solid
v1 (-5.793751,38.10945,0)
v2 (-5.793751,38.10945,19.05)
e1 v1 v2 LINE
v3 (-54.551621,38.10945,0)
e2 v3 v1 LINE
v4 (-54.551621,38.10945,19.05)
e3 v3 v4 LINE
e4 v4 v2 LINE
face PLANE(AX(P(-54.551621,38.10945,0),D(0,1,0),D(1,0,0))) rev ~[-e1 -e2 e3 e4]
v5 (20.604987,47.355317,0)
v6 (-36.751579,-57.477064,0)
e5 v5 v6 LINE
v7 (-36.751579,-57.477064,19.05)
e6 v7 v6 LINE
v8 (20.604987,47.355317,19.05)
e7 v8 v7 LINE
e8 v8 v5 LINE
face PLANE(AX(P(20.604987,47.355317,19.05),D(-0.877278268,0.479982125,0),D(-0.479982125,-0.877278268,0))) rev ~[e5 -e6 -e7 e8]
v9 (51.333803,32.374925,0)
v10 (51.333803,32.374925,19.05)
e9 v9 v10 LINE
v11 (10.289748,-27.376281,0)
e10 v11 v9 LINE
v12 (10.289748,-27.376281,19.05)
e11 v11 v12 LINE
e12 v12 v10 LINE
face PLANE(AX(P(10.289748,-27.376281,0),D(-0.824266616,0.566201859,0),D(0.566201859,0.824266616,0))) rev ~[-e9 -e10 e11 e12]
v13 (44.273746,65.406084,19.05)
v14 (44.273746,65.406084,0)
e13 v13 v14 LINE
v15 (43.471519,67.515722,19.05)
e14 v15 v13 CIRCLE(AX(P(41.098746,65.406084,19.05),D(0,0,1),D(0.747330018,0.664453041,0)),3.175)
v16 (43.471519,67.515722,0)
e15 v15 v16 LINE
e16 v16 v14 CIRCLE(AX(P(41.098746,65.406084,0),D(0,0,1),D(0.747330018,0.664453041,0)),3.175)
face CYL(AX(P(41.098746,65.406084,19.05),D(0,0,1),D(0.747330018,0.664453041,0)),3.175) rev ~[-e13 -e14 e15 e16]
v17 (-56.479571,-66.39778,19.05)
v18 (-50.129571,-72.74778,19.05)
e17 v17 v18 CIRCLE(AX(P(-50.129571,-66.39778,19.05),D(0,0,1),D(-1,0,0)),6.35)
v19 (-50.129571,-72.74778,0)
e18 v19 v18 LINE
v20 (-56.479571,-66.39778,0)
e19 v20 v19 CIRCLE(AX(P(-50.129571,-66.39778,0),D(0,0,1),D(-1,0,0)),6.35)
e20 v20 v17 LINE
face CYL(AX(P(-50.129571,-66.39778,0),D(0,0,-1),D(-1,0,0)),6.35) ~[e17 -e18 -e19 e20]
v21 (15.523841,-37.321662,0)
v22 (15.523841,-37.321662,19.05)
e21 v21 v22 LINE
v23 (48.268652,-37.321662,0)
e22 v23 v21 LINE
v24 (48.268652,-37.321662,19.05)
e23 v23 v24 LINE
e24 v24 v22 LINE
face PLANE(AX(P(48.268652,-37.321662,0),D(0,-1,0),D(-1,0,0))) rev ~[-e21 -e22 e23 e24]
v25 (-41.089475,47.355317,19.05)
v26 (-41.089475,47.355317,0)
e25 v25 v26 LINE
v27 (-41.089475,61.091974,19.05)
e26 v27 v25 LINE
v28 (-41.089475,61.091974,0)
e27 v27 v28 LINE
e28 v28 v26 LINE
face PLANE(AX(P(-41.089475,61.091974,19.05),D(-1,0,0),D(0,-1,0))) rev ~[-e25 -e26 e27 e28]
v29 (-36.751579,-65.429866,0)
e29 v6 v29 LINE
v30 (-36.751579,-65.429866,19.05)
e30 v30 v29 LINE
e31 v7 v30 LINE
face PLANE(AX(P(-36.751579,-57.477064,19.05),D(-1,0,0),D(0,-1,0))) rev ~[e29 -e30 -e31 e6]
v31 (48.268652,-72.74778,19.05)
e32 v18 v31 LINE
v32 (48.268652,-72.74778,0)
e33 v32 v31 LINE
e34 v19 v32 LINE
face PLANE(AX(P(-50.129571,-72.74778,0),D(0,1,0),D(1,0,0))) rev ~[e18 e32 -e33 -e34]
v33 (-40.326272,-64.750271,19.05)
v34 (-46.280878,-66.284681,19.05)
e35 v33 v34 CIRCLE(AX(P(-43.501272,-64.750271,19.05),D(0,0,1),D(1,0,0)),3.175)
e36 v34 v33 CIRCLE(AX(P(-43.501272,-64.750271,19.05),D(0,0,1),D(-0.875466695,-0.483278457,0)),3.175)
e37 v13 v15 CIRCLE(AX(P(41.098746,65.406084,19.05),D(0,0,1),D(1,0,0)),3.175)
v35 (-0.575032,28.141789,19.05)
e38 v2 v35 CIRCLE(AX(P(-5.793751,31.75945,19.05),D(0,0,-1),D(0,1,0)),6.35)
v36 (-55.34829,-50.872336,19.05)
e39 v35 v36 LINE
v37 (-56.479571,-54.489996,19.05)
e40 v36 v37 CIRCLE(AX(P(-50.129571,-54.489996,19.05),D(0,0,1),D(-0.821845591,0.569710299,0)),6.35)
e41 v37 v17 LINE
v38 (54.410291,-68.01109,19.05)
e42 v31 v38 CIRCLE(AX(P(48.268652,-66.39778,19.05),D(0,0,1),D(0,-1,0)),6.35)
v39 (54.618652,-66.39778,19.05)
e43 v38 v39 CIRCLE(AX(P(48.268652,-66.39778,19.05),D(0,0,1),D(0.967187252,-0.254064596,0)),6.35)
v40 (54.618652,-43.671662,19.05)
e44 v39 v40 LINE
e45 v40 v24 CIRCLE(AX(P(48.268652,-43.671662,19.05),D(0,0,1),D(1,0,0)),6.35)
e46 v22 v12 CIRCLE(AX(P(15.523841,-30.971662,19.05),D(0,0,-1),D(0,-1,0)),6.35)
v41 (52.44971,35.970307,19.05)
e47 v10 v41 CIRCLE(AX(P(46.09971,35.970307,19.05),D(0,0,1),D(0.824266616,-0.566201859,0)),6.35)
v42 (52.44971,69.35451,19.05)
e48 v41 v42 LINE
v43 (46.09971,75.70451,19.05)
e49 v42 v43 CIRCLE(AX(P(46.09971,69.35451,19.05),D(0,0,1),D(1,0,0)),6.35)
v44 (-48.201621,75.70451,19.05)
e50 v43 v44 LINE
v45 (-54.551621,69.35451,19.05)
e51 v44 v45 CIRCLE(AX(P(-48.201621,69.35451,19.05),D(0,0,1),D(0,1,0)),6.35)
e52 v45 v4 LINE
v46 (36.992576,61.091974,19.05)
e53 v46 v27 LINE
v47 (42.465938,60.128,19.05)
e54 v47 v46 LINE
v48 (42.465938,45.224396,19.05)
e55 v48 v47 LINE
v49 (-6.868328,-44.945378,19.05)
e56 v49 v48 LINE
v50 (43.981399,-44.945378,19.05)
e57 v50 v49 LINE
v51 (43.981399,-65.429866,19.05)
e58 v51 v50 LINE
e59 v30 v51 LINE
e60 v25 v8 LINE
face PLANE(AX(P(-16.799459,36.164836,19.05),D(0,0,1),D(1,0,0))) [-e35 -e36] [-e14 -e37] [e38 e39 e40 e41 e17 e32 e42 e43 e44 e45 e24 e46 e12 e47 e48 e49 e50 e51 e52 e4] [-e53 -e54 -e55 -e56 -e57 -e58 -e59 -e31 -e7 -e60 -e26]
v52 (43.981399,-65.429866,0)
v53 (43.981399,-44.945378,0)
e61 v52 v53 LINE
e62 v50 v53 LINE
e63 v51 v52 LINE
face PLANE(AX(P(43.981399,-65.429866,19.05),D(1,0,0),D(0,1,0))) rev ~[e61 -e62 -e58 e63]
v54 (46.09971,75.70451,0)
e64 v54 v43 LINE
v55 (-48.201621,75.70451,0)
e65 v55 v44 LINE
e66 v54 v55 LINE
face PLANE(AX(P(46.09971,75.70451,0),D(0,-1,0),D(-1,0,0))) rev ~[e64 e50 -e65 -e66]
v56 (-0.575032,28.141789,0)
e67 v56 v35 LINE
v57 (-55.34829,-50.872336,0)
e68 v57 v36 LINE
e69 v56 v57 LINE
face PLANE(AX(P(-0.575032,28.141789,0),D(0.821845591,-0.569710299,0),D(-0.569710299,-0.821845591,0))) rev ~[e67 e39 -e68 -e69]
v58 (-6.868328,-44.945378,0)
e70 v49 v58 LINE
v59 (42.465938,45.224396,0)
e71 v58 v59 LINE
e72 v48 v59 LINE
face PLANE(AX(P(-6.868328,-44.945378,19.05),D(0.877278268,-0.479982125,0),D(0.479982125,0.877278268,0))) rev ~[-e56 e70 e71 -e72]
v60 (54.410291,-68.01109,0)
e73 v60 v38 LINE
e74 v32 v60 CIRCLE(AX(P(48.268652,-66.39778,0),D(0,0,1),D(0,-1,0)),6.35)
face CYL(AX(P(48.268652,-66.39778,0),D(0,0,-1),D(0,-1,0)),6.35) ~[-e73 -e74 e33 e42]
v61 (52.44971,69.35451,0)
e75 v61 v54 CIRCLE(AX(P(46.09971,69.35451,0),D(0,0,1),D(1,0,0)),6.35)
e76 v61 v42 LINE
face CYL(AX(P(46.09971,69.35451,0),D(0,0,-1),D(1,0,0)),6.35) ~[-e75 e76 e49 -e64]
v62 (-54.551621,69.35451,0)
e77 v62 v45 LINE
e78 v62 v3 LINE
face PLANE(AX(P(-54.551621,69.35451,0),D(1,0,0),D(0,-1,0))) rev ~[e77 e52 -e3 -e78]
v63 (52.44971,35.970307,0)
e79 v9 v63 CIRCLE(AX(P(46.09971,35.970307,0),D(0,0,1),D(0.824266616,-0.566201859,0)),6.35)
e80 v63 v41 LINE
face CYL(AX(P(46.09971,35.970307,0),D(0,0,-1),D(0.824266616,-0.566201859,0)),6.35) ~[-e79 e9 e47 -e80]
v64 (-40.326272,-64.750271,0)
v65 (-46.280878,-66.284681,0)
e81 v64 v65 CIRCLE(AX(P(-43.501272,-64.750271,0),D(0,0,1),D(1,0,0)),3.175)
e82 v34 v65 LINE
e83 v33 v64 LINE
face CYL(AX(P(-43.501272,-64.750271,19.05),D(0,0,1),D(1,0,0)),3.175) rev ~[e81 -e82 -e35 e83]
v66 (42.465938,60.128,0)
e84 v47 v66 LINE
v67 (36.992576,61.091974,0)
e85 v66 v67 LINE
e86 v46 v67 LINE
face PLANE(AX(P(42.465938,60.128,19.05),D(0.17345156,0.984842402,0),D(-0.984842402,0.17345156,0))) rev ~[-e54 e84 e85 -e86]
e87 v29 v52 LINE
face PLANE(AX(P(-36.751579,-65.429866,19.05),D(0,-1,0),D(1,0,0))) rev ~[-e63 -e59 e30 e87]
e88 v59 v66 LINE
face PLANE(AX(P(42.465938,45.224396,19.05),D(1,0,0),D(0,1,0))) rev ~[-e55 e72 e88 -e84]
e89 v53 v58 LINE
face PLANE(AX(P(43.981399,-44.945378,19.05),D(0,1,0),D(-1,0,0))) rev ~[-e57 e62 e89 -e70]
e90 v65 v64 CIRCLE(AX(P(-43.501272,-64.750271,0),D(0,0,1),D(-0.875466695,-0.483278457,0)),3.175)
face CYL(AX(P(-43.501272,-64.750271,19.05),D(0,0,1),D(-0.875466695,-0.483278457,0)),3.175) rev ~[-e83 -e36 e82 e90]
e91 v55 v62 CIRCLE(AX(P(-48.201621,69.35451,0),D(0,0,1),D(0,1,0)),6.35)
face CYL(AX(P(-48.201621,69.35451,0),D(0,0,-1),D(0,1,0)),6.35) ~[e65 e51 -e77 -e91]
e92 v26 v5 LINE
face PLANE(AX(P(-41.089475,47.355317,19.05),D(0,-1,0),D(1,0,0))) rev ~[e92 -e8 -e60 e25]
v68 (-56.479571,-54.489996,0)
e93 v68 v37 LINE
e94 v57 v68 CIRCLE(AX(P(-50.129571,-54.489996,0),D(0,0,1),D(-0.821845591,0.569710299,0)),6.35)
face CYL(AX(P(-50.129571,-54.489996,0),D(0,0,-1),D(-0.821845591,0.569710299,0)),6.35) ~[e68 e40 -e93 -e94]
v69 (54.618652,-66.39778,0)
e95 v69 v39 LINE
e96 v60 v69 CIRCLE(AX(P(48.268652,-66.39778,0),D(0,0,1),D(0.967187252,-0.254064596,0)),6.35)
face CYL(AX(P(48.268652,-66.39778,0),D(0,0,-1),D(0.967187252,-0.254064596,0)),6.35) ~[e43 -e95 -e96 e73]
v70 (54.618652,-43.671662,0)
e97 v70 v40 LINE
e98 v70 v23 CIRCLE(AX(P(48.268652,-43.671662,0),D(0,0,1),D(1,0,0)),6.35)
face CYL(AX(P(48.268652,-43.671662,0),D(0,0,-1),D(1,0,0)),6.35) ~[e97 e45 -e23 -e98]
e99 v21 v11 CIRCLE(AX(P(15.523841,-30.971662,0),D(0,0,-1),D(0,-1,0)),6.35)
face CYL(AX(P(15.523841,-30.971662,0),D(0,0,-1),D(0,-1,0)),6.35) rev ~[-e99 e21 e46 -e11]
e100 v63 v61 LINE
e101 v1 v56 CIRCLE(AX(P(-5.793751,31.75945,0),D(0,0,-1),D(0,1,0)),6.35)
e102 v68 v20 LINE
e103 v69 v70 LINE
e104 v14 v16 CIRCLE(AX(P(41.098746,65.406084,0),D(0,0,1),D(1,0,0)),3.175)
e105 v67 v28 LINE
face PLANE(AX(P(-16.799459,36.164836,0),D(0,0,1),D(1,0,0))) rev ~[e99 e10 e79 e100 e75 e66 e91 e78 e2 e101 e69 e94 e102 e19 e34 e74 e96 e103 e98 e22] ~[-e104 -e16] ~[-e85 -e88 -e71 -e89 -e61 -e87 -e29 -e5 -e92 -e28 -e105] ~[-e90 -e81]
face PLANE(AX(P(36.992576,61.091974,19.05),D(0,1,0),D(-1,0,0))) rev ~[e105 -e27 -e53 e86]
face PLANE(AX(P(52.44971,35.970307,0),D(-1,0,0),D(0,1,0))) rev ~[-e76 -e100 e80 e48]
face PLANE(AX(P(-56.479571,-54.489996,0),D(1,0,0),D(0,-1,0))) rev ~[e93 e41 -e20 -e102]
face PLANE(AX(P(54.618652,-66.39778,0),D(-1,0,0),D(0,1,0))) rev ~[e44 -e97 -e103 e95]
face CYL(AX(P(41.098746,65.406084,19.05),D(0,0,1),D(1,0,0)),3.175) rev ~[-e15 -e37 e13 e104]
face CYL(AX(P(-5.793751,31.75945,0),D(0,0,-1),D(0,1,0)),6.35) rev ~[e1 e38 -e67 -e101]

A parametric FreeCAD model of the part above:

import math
import FreeCAD as App
import Part
import Sketcher
Q = App.Units.Quantity

doc = App.newDocument("Part")
body = doc.addObject("PartDesign::Body", "Body")

sketch1 = body.newObject("Sketcher::SketchObject", "Sketch")
sketch1.AttachmentSupport = (doc.getObject("XY_Plane"), [""])
sketch1.MapMode = "FlatFace"
sketch1.addGeometry([
    Part.LineSegment(App.Vector(-54.6, 38.1, 0), App.Vector(-5.8, 38.1, 0)),
    Part.ArcOfCircle(Part.Circle(App.Vector(-5.8, 31.8, 0), App.Vector(0, 0, 1), 6.3), math.radians(-35), math.radians(90)),
    Part.LineSegment(App.Vector(-0.6, 28.1, 0), App.Vector(-55.3, -50.9, 0)),
    Part.ArcOfCircle(Part.Circle(App.Vector(-50.1, -54.5, 0), App.Vector(0, 0, 1), 6.3), math.radians(145), math.radians(180)),
    Part.LineSegment(App.Vector(-56.5, -54.5, 0), App.Vector(-56.5, -66.4, 0)),
    Part.ArcOfCircle(Part.Circle(App.Vector(-50.1, -66.4, 0), App.Vector(0, 0, 1), 6.3), math.radians(180), math.radians(270)),
    Part.LineSegment(App.Vector(-50.1, -72.7, 0), App.Vector(48.3, -72.7, 0)),
    Part.ArcOfCircle(Part.Circle(App.Vector(48.3, -66.4, 0), App.Vector(0, 0, 1), 6.3), math.radians(-90), math.radians(-15)),
    Part.ArcOfCircle(Part.Circle(App.Vector(48.3, -66.4, 0), App.Vector(0, 0, 1), 6.3), math.radians(-14.72), math.radians(0)),
    Part.LineSegment(App.Vector(54.6, -66.4, 0), App.Vector(54.6, -43.7, 0)),
    Part.ArcOfCircle(Part.Circle(App.Vector(48.3, -43.7, 0), App.Vector(0, 0, 1), 6.3), math.radians(0), math.radians(90)),
    Part.LineSegment(App.Vector(48.3, -37.3, 0), App.Vector(15.5, -37.3, 0)),
    Part.ArcOfCircle(Part.Circle(App.Vector(15.5, -31, 0), App.Vector(0, 0, 1), 6.3), math.radians(146), math.radians(270)),
    Part.LineSegment(App.Vector(10.3, -27.4, 0), App.Vector(51.3, 32.4, 0)),
    Part.ArcOfCircle(Part.Circle(App.Vector(46.1, 36, 0), App.Vector(0, 0, 1), 6.3), math.radians(-34), math.radians(0)),
    Part.LineSegment(App.Vector(52.4, 36, 0), App.Vector(52.4, 69.4, 0)),
    Part.ArcOfCircle(Part.Circle(App.Vector(46.1, 69.4, 0), App.Vector(0, 0, 1), 6.3), math.radians(0), math.radians(90)),
    Part.LineSegment(App.Vector(46.1, 75.7, 0), App.Vector(-48.2, 75.7, 0)),
    Part.ArcOfCircle(Part.Circle(App.Vector(-48.2, 69.4, 0), App.Vector(0, 0, 1), 6.3), math.radians(90), math.radians(180)),
    Part.LineSegment(App.Vector(-54.6, 69.4, 0), App.Vector(-54.6, 38.1, 0)),
], False)
sketch1.addConstraint([
    Sketcher.Constraint("Tangent", 0, 2, 1, 2),
    Sketcher.Constraint("Tangent", 1, 1, 2, 1),
    Sketcher.Constraint("Tangent", 2, 2, 3, 1),
    Sketcher.Constraint("Tangent", 3, 2, 4, 1),
    Sketcher.Constraint("Tangent", 4, 2, 5, 1),
    Sketcher.Constraint("Tangent", 5, 2, 6, 1),
    Sketcher.Constraint("Tangent", 6, 2, 7, 1),
    Sketcher.Constraint("Tangent", 7, 2, 8, 1),
    Sketcher.Constraint("Tangent", 8, 2, 9, 1),
    Sketcher.Constraint("Tangent", 9, 2, 10, 1),
    Sketcher.Constraint("Tangent", 10, 2, 11, 1),
    Sketcher.Constraint("Tangent", 11, 2, 12, 2),
    Sketcher.Constraint("Tangent", 12, 1, 13, 1),
    Sketcher.Constraint("Tangent", 13, 2, 14, 1),
    Sketcher.Constraint("Tangent", 14, 2, 15, 1),
    Sketcher.Constraint("Tangent", 15, 2, 16, 1),
    Sketcher.Constraint("Tangent", 16, 2, 17, 1),
    Sketcher.Constraint("Tangent", 17, 2, 18, 1),
    Sketcher.Constraint("Tangent", 18, 2, 19, 1),
    Sketcher.Constraint("Coincident", 19, 2, 0, 1),
    Sketcher.Constraint("Horizontal", 0),
    Sketcher.Constraint("Vertical", 4),
    Sketcher.Constraint("Horizontal", 6),
    Sketcher.Constraint("Vertical", 9),
    Sketcher.Constraint("Horizontal", 11),
    Sketcher.Constraint("Vertical", 15),
    Sketcher.Constraint("Horizontal", 17),
    Sketcher.Constraint("Vertical", 19),
    Sketcher.Constraint("Equal", 1, 3),
    Sketcher.Constraint("Equal", 3, 5),
    Sketcher.Constraint("Equal", 5, 7),
    Sketcher.Constraint("Equal", 7, 8),
    Sketcher.Constraint("Equal", 8, 10),
    Sketcher.Constraint("Equal", 10, 12),
    Sketcher.Constraint("Equal", 12, 14),
    Sketcher.Constraint("Equal", 14, 16),
    Sketcher.Constraint("Equal", 16, 18),
    Sketcher.Constraint("Radius", 1, Q("0.25 in")),
    Sketcher.Constraint("Distance", 2, Q("96.1423 mm")),
    Sketcher.Constraint("DistanceX", 0, 1, 0, 2, Q("48.75787 mm")),
    Sketcher.Constraint("DistanceX", 11, 2, 11, 1, Q("32.744811 mm")),
    Sketcher.Constraint("DistanceX", 17, 2, 17, 1, Q("94.301331 mm")),
    Sketcher.Constraint("DistanceY", 19, 2, 19, 1, Q("31.24506 mm")),
    Sketcher.Constraint("DistanceX", 6, 1, 6, 2, Q("98.398222 mm")),
    Sketcher.Constraint("DistanceY", 4, 2, 4, 1, Q("11.907784 mm")),
    Sketcher.Constraint("DistanceY", 9, 1, 9, 2, Q("22.726117 mm")),
    Sketcher.Constraint("DistanceY", 15, 1, 15, 2, Q("33.384202 mm")),
    Sketcher.Constraint("DistanceX", 1, 3, -1, 1, Q("5.793751 mm")),
    Sketcher.Constraint("DistanceY", -1, 1, 1, 3, Q("31.75945 mm")),
    Sketcher.Constraint("DistanceX", 3, 3, -1, 1, Q("50.129571 mm")),
    Sketcher.Constraint("DistanceX", -1, 1, 7, 2, Q("54.410291 mm")),
])
pad1 = body.newObject("PartDesign::Pad", "Pad")
pad1.Profile = sketch1
pad1.Length = Q("0.75 in")

sketch2 = body.newObject("Sketcher::SketchObject", "Sketch001")
sketch2.AttachmentSupport = (doc.getObject("XY_Plane"), [""])
sketch2.MapMode = "FlatFace"
sketch2.AttachmentOffset = App.Placement(App.Vector(0, 0, 0.75 * 25.4), App.Rotation())
sketch2.addGeometry([
    Part.ArcOfCircle(Part.Circle(App.Vector(41.1, 65.4, 0), App.Vector(0, 0, 1), 3.2), math.radians(0), math.radians(42)),
    Part.ArcOfCircle(Part.Circle(App.Vector(41.1, 65.4, 0), App.Vector(0, 0, 1), 3.2), math.radians(42), math.radians(360)),
    Part.ArcOfCircle(Part.Circle(App.Vector(-43.5, -64.8, 0), App.Vector(0, 0, 1), 3.2), math.radians(0), math.radians(209)),
    Part.ArcOfCircle(Part.Circle(App.Vector(-43.5, -64.8, 0), App.Vector(0, 0, 1), 3.2), math.radians(-151), math.radians(0)),
], False)
sketch2.addConstraint([
    Sketcher.Constraint("Tangent", 0, 1, 1, 2),
    Sketcher.Constraint("Coincident", 1, 1, 0, 2),
    Sketcher.Constraint("Tangent", 2, 1, 3, 2),
    Sketcher.Constraint("Coincident", 3, 1, 2, 2),
    Sketcher.Constraint("Equal", 1, 2),
    Sketcher.Constraint("Horizontal", 1, 3, 0, 1),
    Sketcher.Constraint("Horizontal", 3, 3, 2, 1),
    Sketcher.Constraint("Radius", 0, Q("0.125 in")),
    Sketcher.Constraint("DistanceX", 2, 3, -1, 1, Q("43.501272 mm")),
    Sketcher.Constraint("DistanceY", 2, 3, -1, 1, Q("64.750271 mm")),
    Sketcher.Constraint("DistanceX", -1, 1, 1, 1, Q("43.471519 mm")),
    Sketcher.Constraint("DistanceX", 3, 1, -1, 1, Q("46.280878 mm")),
    Sketcher.Constraint("DistanceX", 2, 3, 0, 3, Q("84.600018 mm")),
    Sketcher.Constraint("DistanceY", -1, 1, 0, 3, Q("65.406084 mm")),
])
pocket1 = body.newObject("PartDesign::Pocket", "Pocket")
pocket1.Profile = sketch2
pocket1.Length = Q("1 in")

sketch3 = body.newObject("Sketcher::SketchObject", "Sketch002")
sketch3.AttachmentSupport = (doc.getObject("XY_Plane"), [""])
sketch3.MapMode = "FlatFace"
sketch3.AttachmentOffset = App.Placement(App.Vector(0, 0, 0.75 * 25.4), App.Rotation())
sketch3.addGeometry([
    Part.LineSegment(App.Vector(42, 60, 0), App.Vector(37, 61, 0)),
    Part.LineSegment(App.Vector(37, 61, 0), App.Vector(-41, 61, 0)),
    Part.LineSegment(App.Vector(-41, 61, 0), App.Vector(-41, 47, 0)),
    Part.LineSegment(App.Vector(-41, 47, 0), App.Vector(21, 47, 0)),
    Part.LineSegment(App.Vector(21, 47, 0), App.Vector(-37, -57, 0)),
    Part.LineSegment(App.Vector(-37, -57, 0), App.Vector(-37, -65, 0)),
    Part.LineSegment(App.Vector(-37, -65, 0), App.Vector(44, -65, 0)),
    Part.LineSegment(App.Vector(44, -65, 0), App.Vector(44, -45, 0)),
    Part.LineSegment(App.Vector(44, -45, 0), App.Vector(-7, -45, 0)),
    Part.LineSegment(App.Vector(-7, -45, 0), App.Vector(42, 45, 0)),
    Part.LineSegment(App.Vector(42, 45, 0), App.Vector(42, 60, 0)),
], False)
sketch3.addConstraint([
    Sketcher.Constraint("Coincident", 0, 2, 1, 1),
    Sketcher.Constraint("Coincident", 1, 2, 2, 1),
    Sketcher.Constraint("Coincident", 2, 2, 3, 1),
    Sketcher.Constraint("Coincident", 3, 2, 4, 1),
    Sketcher.Constraint("Coincident", 4, 2, 5, 1),
    Sketcher.Constraint("Coincident", 5, 2, 6, 1),
    Sketcher.Constraint("Coincident", 6, 2, 7, 1),
    Sketcher.Constraint("Coincident", 7, 2, 8, 1),
    Sketcher.Constraint("Coincident", 8, 2, 9, 1),
    Sketcher.Constraint("Coincident", 9, 2, 10, 1),
    Sketcher.Constraint("Coincident", 10, 2, 0, 1),
    Sketcher.Constraint("Horizontal", 1),
    Sketcher.Constraint("Vertical", 2),
    Sketcher.Constraint("Horizontal", 3),
    Sketcher.Constraint("Vertical", 5),
    Sketcher.Constraint("Horizontal", 6),
    Sketcher.Constraint("Vertical", 7),
    Sketcher.Constraint("Horizontal", 8),
    Sketcher.Constraint("Vertical", 10),
    Sketcher.Constraint("Parallel", 4, 9),
    Sketcher.Constraint("DistanceY", 5, 2, 5, 1, Q("7.952802 mm")),
    Sketcher.Constraint("DistanceX", 1, 2, 1, 1, Q("78.082051 mm")),
    Sketcher.Constraint("DistanceX", 3, 1, 3, 2, Q("61.694462 mm")),
    Sketcher.Constraint("DistanceX", 6, 1, 6, 2, Q("80.732979 mm")),
    Sketcher.Constraint("DistanceY", 7, 1, 7, 2, Q("20.484488 mm")),
    Sketcher.Constraint("DistanceX", -1, 1, 6, 2, Q("43.981399 mm")),
    Sketcher.Constraint("DistanceY", -1, 1, 10, 2, Q("60.128 mm")),
    Sketcher.Constraint("Distance", 9, Q("102.78355 mm")),
    Sketcher.Constraint("DistanceX", 8, 2, 8, 1, Q("50.849728 mm")),
    Sketcher.Constraint("DistanceY", 2, 2, 2, 1, Q("13.736658 mm")),
    Sketcher.Constraint("DistanceY", 10, 1, 10, 2, Q("14.903603 mm")),
    Sketcher.Constraint("DistanceX", -1, 1, 9, 2, Q("42.465938 mm")),
    Sketcher.Constraint("DistanceY", 4, 2, 2, 2, Q("104.832381 mm")),
])
pocket2 = body.newObject("PartDesign::Pocket", "Pocket001")
pocket2.Profile = sketch3
pocket2.Type = "ThroughAll"

doc.recompute()
